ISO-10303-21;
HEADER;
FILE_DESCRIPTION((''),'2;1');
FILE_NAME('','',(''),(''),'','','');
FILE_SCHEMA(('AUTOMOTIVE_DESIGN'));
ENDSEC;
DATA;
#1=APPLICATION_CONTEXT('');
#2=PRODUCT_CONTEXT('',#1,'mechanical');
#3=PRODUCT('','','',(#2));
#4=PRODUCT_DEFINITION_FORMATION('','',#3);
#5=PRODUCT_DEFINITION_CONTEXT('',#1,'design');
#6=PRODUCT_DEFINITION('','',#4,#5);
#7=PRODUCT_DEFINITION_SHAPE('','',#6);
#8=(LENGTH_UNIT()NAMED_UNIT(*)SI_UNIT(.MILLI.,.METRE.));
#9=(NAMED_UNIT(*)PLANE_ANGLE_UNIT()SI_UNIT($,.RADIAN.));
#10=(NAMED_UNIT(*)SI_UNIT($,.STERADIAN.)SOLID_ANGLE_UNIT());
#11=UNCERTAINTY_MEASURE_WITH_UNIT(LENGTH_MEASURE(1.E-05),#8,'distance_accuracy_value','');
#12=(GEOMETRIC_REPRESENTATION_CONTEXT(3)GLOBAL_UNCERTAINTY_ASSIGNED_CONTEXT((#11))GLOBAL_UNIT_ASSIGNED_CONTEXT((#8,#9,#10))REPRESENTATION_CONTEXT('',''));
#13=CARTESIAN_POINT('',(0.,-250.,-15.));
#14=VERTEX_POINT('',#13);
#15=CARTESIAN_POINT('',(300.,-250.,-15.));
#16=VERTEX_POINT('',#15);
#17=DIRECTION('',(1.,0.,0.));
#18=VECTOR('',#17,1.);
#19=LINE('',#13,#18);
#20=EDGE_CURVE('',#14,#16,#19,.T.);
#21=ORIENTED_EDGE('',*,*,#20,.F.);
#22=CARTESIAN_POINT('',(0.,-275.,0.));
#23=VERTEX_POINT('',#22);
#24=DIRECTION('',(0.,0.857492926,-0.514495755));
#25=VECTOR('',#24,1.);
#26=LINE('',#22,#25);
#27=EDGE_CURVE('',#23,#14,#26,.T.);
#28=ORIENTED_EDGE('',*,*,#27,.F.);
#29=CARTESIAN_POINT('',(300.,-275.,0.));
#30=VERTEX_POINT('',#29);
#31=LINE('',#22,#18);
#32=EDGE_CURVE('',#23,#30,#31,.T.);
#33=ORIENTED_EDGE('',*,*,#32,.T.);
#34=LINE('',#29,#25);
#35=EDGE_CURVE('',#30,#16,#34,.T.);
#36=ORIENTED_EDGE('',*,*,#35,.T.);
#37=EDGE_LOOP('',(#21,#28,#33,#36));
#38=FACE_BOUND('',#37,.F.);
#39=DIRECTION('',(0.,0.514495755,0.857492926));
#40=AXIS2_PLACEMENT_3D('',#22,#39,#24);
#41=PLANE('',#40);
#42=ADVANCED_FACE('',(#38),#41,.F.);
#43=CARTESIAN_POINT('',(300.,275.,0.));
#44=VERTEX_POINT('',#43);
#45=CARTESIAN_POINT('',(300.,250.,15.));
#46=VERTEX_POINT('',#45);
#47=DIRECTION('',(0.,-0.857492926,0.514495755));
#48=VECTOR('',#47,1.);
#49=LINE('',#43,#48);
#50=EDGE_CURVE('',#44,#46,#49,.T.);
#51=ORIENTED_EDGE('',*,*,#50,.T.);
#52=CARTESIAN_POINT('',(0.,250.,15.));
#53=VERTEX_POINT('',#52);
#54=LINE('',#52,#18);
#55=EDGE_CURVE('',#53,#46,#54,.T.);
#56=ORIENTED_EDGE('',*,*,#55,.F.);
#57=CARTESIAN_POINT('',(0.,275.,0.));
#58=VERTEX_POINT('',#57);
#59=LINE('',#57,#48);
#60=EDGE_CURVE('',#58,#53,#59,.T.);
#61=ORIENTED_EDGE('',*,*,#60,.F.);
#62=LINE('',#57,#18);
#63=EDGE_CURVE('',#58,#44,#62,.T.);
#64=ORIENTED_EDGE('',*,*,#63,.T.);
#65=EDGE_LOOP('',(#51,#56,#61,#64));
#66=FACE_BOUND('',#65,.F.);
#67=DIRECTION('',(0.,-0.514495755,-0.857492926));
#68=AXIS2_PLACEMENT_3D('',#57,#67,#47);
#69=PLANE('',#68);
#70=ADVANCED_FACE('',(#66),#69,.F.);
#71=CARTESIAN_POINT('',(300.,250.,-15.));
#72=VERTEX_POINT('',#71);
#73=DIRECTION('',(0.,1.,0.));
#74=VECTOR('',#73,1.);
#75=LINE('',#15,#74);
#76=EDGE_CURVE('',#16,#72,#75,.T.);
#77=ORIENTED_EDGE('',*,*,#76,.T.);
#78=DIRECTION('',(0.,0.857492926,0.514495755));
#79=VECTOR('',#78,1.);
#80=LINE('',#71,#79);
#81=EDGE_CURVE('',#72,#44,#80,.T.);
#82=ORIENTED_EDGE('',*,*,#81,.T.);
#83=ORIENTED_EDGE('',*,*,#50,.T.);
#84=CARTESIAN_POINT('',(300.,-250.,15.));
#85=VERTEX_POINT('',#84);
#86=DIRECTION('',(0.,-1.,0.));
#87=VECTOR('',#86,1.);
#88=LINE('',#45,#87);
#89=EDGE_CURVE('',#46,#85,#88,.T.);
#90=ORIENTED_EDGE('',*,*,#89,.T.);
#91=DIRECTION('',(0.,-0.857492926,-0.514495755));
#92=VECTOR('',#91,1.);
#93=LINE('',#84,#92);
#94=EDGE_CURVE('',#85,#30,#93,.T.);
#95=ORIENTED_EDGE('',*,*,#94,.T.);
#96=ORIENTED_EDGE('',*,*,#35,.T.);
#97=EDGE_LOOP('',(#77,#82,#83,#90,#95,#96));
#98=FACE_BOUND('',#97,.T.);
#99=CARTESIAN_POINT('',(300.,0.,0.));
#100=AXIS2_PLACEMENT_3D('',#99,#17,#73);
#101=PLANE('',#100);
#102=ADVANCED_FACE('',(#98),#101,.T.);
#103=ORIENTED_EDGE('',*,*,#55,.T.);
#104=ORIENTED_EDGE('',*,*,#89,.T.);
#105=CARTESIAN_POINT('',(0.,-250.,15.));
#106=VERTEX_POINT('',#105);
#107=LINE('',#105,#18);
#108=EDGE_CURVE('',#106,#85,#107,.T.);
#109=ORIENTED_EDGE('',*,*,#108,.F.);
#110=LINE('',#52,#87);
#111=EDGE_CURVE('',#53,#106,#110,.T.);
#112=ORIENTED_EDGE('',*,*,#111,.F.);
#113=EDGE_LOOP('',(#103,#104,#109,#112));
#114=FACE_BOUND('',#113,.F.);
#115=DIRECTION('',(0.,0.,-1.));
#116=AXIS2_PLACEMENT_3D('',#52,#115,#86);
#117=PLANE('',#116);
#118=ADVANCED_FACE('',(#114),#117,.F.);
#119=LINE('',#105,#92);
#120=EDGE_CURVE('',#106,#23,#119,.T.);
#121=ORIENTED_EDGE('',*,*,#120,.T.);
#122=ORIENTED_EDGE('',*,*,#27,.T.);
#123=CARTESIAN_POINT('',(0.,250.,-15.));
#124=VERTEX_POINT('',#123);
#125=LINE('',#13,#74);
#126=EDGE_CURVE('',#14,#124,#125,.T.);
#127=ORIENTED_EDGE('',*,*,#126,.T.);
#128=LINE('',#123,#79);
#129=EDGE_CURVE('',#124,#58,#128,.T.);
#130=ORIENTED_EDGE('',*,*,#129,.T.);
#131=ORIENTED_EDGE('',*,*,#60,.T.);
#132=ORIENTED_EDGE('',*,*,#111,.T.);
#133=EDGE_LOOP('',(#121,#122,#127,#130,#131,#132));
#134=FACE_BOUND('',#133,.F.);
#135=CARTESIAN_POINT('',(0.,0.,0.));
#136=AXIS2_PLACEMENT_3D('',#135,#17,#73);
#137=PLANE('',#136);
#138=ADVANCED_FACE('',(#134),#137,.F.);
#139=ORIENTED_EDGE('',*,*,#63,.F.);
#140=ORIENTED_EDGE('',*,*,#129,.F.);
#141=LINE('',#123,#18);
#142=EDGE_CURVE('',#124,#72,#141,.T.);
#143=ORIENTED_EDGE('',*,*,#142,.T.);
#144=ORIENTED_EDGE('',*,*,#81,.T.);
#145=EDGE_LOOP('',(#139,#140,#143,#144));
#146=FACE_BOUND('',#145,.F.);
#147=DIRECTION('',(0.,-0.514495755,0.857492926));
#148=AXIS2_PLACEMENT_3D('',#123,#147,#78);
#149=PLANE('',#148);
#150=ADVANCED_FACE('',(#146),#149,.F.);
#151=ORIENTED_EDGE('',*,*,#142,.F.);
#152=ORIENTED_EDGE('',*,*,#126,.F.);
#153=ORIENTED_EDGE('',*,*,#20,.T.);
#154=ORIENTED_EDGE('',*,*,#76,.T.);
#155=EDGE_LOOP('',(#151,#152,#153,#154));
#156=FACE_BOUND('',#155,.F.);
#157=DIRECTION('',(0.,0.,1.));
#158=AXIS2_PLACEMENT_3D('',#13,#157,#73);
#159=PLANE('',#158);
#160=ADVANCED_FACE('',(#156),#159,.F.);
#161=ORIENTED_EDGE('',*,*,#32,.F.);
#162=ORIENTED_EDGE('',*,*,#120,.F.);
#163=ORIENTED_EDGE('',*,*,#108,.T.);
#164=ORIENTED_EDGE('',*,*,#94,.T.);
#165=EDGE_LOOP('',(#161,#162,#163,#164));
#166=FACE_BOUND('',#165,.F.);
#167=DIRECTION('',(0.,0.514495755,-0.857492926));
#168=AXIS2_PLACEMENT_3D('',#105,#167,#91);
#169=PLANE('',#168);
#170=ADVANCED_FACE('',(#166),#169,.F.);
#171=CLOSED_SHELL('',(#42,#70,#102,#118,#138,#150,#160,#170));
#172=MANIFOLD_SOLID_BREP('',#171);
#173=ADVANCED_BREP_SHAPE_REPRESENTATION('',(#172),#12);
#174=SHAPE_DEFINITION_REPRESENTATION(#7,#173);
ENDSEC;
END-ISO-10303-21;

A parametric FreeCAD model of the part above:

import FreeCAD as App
import Part
import Sketcher

doc = App.newDocument("Part")
body = doc.addObject("PartDesign::Body", "Body")

# Sketch on YZ plane
sketch1 = body.newObject("Sketcher::SketchObject", "Sketch")
sketch1.AttachmentSupport = (doc.getObject("YZ_Plane"), [""])
sketch1.MapMode = "FlatFace"
sketch1.addGeometry(Part.LineSegment(App.Vector(250, -15, 0), App.Vector(275, 0, 0)), False)
sketch1.addGeometry(Part.LineSegment(App.Vector(275, 0, 0), App.Vector(250, 15, 0)), False)
sketch1.addGeometry(Part.LineSegment(App.Vector(250, 15, 0), App.Vector(-250, 15, 0)), False)
sketch1.addGeometry(Part.LineSegment(App.Vector(-250, 15, 0), App.Vector(-275, 0, 0)), False)
sketch1.addGeometry(Part.LineSegment(App.Vector(-275, 0, 0), App.Vector(-250, -15, 0)), False)
sketch1.addGeometry(Part.LineSegment(App.Vector(-250, -15, 0), App.Vector(250, -15, 0)), False)
sketch1.addConstraint(Sketcher.Constraint("Coincident", 0, 2, 1, 1))
sketch1.addConstraint(Sketcher.Constraint("Coincident", 1, 2, 2, 1))
sketch1.addConstraint(Sketcher.Constraint("Coincident", 2, 2, 3, 1))
sketch1.addConstraint(Sketcher.Constraint("Coincident", 3, 2, 4, 1))
sketch1.addConstraint(Sketcher.Constraint("Coincident", 4, 2, 5, 1))
sketch1.addConstraint(Sketcher.Constraint("Coincident", 5, 2, 0, 1))
sketch1.addConstraint(Sketcher.Constraint("Horizontal", 2))
sketch1.addConstraint(Sketcher.Constraint("Horizontal", 5))
sketch1.addConstraint(Sketcher.Constraint("Symmetric", 0, 2, 3, 2, -1, 1))
sketch1.addConstraint(Sketcher.Constraint("Symmetric", 1, 2, 4, 2, -1, 1))
sketch1.addConstraint(Sketcher.Constraint("PointOnObject", 0, 2, -1))
sketch1.addConstraint(Sketcher.Constraint("Parallel", 0, 3))
sketch1.addConstraint(Sketcher.Constraint("Vertical", 2, 2, 4, 2))
sketch1.addConstraint(Sketcher.Constraint("DistanceX", 2, 2, 2, 1, 500.0))
sketch1.addConstraint(Sketcher.Constraint("DistanceX", -1, 1, 0, 2, 275.0))
sketch1.addConstraint(Sketcher.Constraint("DistanceY", -1, 1, 1, 2, 15.0))
pad1 = body.newObject("PartDesign::Pad", "Pad")
pad1.Profile = sketch1
pad1.Length = 300

doc.recompute()
